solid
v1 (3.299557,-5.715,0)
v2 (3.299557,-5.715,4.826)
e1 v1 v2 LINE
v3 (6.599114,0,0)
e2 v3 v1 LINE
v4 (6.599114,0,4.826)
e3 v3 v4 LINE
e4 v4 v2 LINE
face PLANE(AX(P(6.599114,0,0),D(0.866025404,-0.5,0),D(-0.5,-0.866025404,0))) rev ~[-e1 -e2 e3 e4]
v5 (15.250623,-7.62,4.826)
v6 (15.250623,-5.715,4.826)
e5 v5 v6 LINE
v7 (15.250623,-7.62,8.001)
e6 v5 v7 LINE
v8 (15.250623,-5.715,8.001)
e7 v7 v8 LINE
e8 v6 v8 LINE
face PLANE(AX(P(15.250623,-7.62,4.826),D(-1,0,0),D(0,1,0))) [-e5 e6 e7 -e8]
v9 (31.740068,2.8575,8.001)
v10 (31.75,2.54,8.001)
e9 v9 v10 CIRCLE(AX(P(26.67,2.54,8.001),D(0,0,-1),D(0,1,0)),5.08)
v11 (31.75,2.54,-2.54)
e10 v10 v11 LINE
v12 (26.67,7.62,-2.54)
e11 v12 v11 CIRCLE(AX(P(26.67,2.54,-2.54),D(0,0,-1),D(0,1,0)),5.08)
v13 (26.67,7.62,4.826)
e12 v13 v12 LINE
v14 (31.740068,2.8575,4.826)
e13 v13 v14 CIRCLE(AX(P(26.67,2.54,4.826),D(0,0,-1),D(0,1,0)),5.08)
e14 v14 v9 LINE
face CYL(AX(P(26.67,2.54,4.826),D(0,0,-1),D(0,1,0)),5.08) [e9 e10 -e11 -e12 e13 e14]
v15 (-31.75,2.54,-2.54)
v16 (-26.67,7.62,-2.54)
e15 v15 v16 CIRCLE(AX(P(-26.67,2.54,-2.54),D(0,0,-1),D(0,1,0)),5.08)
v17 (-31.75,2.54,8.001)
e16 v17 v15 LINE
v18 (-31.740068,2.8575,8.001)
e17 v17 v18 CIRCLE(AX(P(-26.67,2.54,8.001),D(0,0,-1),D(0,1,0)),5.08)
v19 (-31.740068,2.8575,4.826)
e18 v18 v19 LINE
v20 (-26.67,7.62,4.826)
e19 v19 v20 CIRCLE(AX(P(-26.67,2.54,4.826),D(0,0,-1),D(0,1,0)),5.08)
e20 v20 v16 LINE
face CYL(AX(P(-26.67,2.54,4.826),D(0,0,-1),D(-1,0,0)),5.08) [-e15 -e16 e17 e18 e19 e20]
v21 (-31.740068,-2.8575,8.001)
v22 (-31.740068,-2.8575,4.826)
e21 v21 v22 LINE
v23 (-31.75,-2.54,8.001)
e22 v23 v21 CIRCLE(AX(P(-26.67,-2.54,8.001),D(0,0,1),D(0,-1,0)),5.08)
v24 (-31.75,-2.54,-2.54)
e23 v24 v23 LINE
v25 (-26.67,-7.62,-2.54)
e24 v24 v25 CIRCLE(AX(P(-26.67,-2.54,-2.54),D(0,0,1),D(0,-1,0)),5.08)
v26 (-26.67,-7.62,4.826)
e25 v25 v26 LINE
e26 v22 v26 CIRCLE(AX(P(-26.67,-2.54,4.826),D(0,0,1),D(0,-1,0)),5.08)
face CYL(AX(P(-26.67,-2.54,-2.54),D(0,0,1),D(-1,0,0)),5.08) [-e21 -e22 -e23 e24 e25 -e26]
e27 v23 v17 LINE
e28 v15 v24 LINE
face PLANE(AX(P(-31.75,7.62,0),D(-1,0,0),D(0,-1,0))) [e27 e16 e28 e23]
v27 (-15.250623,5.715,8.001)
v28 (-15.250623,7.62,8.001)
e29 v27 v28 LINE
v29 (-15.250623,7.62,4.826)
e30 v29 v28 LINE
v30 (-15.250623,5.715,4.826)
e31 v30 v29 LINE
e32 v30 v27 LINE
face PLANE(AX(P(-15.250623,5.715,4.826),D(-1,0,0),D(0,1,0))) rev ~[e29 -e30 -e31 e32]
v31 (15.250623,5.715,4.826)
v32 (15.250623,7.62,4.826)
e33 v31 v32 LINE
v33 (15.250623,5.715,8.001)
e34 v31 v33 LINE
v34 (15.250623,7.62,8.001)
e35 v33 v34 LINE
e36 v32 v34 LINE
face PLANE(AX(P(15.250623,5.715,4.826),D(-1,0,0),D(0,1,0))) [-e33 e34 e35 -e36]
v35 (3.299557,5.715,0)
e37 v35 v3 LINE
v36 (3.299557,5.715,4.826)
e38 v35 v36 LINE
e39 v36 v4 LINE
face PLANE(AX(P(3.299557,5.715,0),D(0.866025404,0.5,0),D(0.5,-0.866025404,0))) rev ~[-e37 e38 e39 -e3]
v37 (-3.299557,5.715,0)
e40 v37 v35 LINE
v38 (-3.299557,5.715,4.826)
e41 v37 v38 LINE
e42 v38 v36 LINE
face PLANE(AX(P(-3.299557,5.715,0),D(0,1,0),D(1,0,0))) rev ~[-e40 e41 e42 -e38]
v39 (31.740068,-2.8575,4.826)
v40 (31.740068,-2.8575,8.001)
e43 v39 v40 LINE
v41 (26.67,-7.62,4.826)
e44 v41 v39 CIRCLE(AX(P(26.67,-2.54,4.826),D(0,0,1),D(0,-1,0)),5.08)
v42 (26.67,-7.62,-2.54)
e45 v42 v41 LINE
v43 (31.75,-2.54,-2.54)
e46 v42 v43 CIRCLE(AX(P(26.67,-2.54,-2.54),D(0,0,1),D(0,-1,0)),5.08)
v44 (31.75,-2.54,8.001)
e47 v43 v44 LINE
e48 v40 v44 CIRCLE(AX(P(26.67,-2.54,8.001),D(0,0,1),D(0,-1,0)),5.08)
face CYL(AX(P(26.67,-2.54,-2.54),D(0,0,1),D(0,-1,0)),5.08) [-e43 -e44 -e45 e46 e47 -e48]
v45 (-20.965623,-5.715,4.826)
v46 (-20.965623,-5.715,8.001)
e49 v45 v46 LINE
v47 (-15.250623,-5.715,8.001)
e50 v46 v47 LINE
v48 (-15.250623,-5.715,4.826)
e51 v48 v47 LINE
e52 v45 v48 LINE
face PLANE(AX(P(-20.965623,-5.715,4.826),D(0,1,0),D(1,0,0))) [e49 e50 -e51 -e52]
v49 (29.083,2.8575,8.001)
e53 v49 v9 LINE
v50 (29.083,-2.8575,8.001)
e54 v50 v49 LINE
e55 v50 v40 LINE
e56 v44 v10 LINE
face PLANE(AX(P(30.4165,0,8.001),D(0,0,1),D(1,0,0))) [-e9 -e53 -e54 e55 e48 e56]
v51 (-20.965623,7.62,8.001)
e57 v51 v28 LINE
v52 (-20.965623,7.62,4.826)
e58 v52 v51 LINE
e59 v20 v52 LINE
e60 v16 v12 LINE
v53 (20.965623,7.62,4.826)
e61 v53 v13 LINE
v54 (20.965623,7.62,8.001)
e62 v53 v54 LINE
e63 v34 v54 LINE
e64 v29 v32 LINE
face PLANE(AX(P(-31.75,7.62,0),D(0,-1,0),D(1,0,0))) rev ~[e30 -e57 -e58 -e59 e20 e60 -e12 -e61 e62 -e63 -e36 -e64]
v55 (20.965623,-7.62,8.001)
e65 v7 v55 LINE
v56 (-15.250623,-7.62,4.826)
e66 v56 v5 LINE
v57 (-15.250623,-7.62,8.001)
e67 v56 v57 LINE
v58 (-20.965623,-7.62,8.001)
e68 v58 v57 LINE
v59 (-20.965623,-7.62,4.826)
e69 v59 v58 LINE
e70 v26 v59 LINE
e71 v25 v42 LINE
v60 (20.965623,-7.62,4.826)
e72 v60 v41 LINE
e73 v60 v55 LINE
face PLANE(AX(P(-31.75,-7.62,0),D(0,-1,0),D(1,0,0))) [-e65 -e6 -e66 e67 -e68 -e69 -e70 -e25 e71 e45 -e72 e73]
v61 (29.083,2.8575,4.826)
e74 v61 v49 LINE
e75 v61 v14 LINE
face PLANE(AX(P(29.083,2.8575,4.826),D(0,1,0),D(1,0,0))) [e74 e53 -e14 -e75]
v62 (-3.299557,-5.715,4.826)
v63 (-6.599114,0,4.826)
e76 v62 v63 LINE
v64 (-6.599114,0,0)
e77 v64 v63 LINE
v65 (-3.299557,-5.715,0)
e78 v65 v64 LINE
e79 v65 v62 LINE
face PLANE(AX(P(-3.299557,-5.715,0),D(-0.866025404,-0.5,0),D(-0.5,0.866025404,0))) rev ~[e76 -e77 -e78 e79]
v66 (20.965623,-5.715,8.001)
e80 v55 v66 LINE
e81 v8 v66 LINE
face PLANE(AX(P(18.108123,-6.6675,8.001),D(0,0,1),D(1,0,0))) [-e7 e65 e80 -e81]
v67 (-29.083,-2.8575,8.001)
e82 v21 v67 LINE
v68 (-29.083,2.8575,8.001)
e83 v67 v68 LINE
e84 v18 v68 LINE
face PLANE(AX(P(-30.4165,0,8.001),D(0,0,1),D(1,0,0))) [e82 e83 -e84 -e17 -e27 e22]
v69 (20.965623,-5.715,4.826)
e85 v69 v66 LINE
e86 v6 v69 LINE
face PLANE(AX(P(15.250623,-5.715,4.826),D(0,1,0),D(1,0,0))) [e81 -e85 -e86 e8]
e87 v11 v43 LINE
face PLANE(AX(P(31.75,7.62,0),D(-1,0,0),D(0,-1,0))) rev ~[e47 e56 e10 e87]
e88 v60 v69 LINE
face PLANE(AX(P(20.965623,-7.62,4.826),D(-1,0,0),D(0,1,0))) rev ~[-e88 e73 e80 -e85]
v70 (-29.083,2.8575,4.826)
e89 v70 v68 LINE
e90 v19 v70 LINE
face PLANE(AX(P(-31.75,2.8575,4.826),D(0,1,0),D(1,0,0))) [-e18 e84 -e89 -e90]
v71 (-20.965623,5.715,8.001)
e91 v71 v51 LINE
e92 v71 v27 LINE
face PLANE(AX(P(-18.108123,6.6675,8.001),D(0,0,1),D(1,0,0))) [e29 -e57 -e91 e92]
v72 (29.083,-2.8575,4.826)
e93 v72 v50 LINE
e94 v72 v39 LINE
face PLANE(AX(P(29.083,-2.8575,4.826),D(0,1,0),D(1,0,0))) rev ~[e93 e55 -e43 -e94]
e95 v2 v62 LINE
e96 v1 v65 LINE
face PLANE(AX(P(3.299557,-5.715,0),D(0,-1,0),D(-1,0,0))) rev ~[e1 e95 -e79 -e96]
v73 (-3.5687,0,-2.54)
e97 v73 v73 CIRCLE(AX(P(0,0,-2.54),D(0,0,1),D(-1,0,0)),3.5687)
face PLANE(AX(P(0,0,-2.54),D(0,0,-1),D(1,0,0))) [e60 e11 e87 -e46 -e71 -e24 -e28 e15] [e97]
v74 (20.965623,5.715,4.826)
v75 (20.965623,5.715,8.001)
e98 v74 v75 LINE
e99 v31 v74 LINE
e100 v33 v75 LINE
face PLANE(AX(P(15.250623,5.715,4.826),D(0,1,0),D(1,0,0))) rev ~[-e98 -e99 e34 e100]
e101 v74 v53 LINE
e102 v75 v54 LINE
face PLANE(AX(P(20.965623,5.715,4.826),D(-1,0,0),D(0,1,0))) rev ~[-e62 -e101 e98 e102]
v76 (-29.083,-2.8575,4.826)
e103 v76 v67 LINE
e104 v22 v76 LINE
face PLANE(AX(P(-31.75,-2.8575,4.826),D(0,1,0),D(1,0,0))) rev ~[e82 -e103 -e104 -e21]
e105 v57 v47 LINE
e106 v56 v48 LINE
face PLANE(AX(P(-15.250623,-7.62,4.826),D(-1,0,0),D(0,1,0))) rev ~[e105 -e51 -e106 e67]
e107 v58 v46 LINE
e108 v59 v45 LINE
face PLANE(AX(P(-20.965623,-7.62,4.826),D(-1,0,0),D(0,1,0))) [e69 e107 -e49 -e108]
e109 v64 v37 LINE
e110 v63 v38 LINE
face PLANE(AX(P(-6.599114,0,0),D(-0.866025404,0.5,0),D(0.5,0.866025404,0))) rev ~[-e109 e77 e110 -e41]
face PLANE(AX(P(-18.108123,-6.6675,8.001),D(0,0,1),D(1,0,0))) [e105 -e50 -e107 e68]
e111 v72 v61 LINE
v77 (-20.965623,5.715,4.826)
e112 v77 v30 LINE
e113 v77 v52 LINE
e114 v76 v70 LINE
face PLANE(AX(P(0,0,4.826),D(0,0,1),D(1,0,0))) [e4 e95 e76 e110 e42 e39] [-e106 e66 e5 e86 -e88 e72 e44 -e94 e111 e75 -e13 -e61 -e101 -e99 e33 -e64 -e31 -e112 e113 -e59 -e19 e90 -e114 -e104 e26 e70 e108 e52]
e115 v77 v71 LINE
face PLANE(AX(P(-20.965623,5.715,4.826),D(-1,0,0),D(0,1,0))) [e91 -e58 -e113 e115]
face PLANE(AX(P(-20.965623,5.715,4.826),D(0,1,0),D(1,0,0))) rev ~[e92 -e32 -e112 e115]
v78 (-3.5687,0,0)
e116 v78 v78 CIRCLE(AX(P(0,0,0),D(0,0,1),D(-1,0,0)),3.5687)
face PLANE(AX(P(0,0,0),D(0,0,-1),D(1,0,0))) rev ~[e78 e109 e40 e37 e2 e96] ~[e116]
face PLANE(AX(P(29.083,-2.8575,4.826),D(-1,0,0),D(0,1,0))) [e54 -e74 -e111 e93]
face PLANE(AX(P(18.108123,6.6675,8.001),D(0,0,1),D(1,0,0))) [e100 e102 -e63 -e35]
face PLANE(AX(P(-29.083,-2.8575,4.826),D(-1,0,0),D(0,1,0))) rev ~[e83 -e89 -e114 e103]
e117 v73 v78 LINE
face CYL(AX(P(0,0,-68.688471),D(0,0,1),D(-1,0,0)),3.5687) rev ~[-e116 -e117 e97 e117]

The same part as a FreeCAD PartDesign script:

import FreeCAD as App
import Part
import Sketcher

V = App.Vector
Q = App.Units.Quantity


def edges_at(feature, points):
    """Names of the edges that pass closest to the given points."""
    edges = feature.Shape.Edges
    near = lambda p: min(range(len(edges)), key=lambda i: edges[i].distToShape(Part.Vertex(*p))[0])
    return sorted({f"Edge{near(p) + 1}" for p in points})


def add_polygon(sketch, points):
    """Adds a closed chain of lines whose ends are joined by coincident constraints."""
    first, n = sketch.GeometryCount, len(points)
    for a, b in zip(points, points[1:] + points[:1]):
        sketch.addGeometry(Part.LineSegment(App.Vector(*a, 0), App.Vector(*b, 0)), False)
    for i in range(n):
        sketch.addConstraint(Sketcher.Constraint("Coincident", first + i, 2, first + (i + 1) % n, 1))

doc = App.newDocument("Part")
body = doc.addObject("PartDesign::Body", "Body")

# Sketch on XY plane
sketch1 = doc.addObject("Sketcher::SketchObject", "Sketch")
body.addObject(sketch1)
sketch1.AttachmentSupport = (doc.XY_Plane, [""])
sketch1.MapMode = "FlatFace"
add_polygon(sketch1, [(-32, 8), (-32, -8), (32, -8), (32, 8)])  # lines 0-3
add_polygon(sketch1, [(3, -6), (-3, -6), (-7, 0), (-3, 6), (3, 6), (7, 0)])  # lines 4-9
sketch1.addConstraint([
    Sketcher.Constraint("Vertical", 0),
    Sketcher.Constraint("Horizontal", 1),
    Sketcher.Constraint("Vertical", 2),
    Sketcher.Constraint("Horizontal", 3),
    Sketcher.Constraint("Horizontal", 4),
    Sketcher.Constraint("Horizontal", 7),
    Sketcher.Constraint("Symmetric", 0, 2, 2, 2, -1, 1),
    Sketcher.Constraint("Symmetric", 4, 2, 7, 2, -1, 1),
    Sketcher.Constraint("Symmetric", 5, 2, 8, 2, -1, 1),
    Sketcher.Constraint("PointOnObject", 5, 2, -1),
    Sketcher.Constraint("Parallel", 6, 9),
    Sketcher.Constraint("Vertical", 4, 2, 6, 2),
    Sketcher.Constraint("DistanceX", 1, 1, 1, 2, Q("2.5 in")),
    Sketcher.Constraint("DistanceY", 0, 2, 0, 1, Q("0.6 in")),
    Sketcher.Constraint("Angle", 5, Q("120 deg")),
    Sketcher.Constraint("DistanceY", 4, 2, 6, 2, Q("0.45 in")),
    Sketcher.Constraint("DistanceX", 4, 2, 4, 1, 6.599114),
])
pad1 = doc.addObject("PartDesign::Pad", "Pad")
body.addObject(pad1)
pad1.Profile = sketch1
pad1.Length = Q("0.19 in")

# Sketch on XY plane
sketch2 = doc.addObject("Sketcher::SketchObject", "Sketch001")
body.addObject(sketch2)
sketch2.AttachmentSupport = (doc.XY_Plane, [""])
sketch2.MapMode = "FlatFace"
sketch2.AttachmentOffset = App.Placement(V(0, 0, 0.19 * 25.4), App.Rotation())
add_polygon(sketch2, [(-31.8, 2.9), (-31.8, -2.9), (-29.1, -2.9), (-29.1, 2.9)])  # lines 0-3
add_polygon(sketch2, [(-21, -5.7), (-21, -7.6), (-15.3, -7.6), (-15.3, -5.7)])  # lines 4-7
add_polygon(sketch2, [(15.3, -5.7), (15.3, -7.6), (21, -7.6), (21, -5.7)])  # lines 8-11
add_polygon(sketch2, [(-21, 7.6), (-21, 5.7), (-15.3, 5.7), (-15.3, 7.6)])  # lines 12-15
add_polygon(sketch2, [(15.3, 7.6), (15.3, 5.7), (21, 5.7), (21, 7.6)])  # lines 16-19
add_polygon(sketch2, [(29.1, 2.9), (29.1, -2.9), (31.8, -2.9), (31.8, 2.9)])  # lines 20-23
sketch2.addConstraint([
    Sketcher.Constraint("Vertical", 0),
    Sketcher.Constraint("Horizontal", 1),
    Sketcher.Constraint("Vertical", 2),
    Sketcher.Constraint("Horizontal", 3),
    Sketcher.Constraint("Vertical", 4),
    Sketcher.Constraint("Horizontal", 5),
    Sketcher.Constraint("Vertical", 6),
    Sketcher.Constraint("Horizontal", 7),
    Sketcher.Constraint("Vertical", 8),
    Sketcher.Constraint("Horizontal", 9),
    Sketcher.Constraint("Vertical", 10),
    Sketcher.Constraint("Horizontal", 11),
    Sketcher.Constraint("Vertical", 12),
    Sketcher.Constraint("Horizontal", 13),
    Sketcher.Constraint("Vertical", 14),
    Sketcher.Constraint("Horizontal", 15),
    Sketcher.Constraint("Vertical", 16),
    Sketcher.Constraint("Horizontal", 17),
    Sketcher.Constraint("Vertical", 18),
    Sketcher.Constraint("Horizontal", 19),
    Sketcher.Constraint("Vertical", 20),
    Sketcher.Constraint("Horizontal", 21),
    Sketcher.Constraint("Vertical", 22),
    Sketcher.Constraint("Horizontal", 23),
    Sketcher.Constraint("Symmetric", 10, 2, 12, 2, -1, 1),
    Sketcher.Constraint("Symmetric", 8, 2, 14, 2, -1, 1),
    Sketcher.Constraint("Symmetric", 6, 2, 16, 2, -1, 1),
    Sketcher.Constraint("Symmetric", 4, 2, 18, 2, -1, 1),
    Sketcher.Constraint("Symmetric", 2, 2, 20, 2, -1, 1),
    Sketcher.Constraint("Symmetric", 0, 2, 22, 2, -1, 1),
    Sketcher.Constraint("Symmetric", 5, 2, 8, 2, -2),
    Sketcher.Constraint("Symmetric", 7, 2, 10, 2, -2),
    Sketcher.Constraint("Horizontal", 1, 2, 20, 2),
    Sketcher.Constraint("Equal", 19, 0),
    Sketcher.Constraint("DistanceY", 4, 2, -1, 1, Q("0.3 in")),
    Sketcher.Constraint("DistanceX", 1, 1, 1, 2, Q("0.105 in")),
    Sketcher.Constraint("DistanceX", 5, 1, 5, 2, Q("0.225 in")),
    Sketcher.Constraint("DistanceY", 4, 2, 4, 1, Q("0.075 in")),
    Sketcher.Constraint("DistanceX", 0, 2, -1, 1, Q("1.25 in")),
    Sketcher.Constraint("DistanceX", 4, 2, -1, 1, 20.965623),
])
pad2 = doc.addObject("PartDesign::Pad", "Pad001")
body.addObject(pad2)
pad2.Profile = sketch2
pad2.Length = Q("0.125 in")

# Sketch on XY plane
sketch3 = doc.addObject("Sketcher::SketchObject", "Sketch002")
body.addObject(sketch3)
sketch3.AttachmentSupport = (doc.XY_Plane, [""])
sketch3.MapMode = "FlatFace"
add_polygon(sketch3, [(-32, -8), (-32, 8), (32, 8), (32, -8)])  # lines 0-3
sketch3.addConstraint([
    Sketcher.Constraint("Vertical", 0),
    Sketcher.Constraint("Horizontal", 1),
    Sketcher.Constraint("Vertical", 2),
    Sketcher.Constraint("Horizontal", 3),
    Sketcher.Constraint("Symmetric", 0, 2, 2, 2, -1, 1),
    Sketcher.Constraint("DistanceX", 1, 1, 1, 2, Q("2.5 in")),
    Sketcher.Constraint("DistanceY", 0, 1, 0, 2, Q("0.6 in")),
])
pad3 = doc.addObject("PartDesign::Pad", "Pad002")
body.addObject(pad3)
pad3.Profile = sketch3
pad3.Length = Q("0.1 in")
pad3.Reversed = True

# Sketch on XY plane
sketch4 = doc.addObject("Sketcher::SketchObject", "Sketch003")
body.addObject(sketch4)
sketch4.AttachmentSupport = (doc.XY_Plane, [""])
sketch4.MapMode = "FlatFace"
sketch4.AttachmentOffset = App.Placement(V(0, 0, -0.1 * 25.4), App.Rotation())
sketch4.addGeometry(Part.Circle(V(0, 0, 0), V(0, 0, 1), 3.6), False)
sketch4.addConstraint([
    Sketcher.Constraint("Coincident", 0, 3, -1, 1),
    Sketcher.Constraint("Diameter", 0, Q("0.281 in")),
])
doc.recompute()
hole = doc.addObject("PartDesign::Hole", "Hole")
body.addObject(hole)
hole.Profile = sketch4
hole.ThreadType = "None"
hole.Diameter = Q("0.281 in")
hole.DepthType = "ThroughAll"
hole.Reversed = True
doc.recompute()

fillet = doc.addObject("PartDesign::Fillet", "Fillet")
body.addObject(fillet)
fillet.Base = (hole, edges_at(hole, [
    (31.75, -7.62, 1.143),
    (31.75, 7.62, 1.143),
    (-31.75, 7.62, 1.143),
    (-31.75, -7.62, 1.143),
]))
fillet.Radius = Q("0.2 in")

doc.recompute()
